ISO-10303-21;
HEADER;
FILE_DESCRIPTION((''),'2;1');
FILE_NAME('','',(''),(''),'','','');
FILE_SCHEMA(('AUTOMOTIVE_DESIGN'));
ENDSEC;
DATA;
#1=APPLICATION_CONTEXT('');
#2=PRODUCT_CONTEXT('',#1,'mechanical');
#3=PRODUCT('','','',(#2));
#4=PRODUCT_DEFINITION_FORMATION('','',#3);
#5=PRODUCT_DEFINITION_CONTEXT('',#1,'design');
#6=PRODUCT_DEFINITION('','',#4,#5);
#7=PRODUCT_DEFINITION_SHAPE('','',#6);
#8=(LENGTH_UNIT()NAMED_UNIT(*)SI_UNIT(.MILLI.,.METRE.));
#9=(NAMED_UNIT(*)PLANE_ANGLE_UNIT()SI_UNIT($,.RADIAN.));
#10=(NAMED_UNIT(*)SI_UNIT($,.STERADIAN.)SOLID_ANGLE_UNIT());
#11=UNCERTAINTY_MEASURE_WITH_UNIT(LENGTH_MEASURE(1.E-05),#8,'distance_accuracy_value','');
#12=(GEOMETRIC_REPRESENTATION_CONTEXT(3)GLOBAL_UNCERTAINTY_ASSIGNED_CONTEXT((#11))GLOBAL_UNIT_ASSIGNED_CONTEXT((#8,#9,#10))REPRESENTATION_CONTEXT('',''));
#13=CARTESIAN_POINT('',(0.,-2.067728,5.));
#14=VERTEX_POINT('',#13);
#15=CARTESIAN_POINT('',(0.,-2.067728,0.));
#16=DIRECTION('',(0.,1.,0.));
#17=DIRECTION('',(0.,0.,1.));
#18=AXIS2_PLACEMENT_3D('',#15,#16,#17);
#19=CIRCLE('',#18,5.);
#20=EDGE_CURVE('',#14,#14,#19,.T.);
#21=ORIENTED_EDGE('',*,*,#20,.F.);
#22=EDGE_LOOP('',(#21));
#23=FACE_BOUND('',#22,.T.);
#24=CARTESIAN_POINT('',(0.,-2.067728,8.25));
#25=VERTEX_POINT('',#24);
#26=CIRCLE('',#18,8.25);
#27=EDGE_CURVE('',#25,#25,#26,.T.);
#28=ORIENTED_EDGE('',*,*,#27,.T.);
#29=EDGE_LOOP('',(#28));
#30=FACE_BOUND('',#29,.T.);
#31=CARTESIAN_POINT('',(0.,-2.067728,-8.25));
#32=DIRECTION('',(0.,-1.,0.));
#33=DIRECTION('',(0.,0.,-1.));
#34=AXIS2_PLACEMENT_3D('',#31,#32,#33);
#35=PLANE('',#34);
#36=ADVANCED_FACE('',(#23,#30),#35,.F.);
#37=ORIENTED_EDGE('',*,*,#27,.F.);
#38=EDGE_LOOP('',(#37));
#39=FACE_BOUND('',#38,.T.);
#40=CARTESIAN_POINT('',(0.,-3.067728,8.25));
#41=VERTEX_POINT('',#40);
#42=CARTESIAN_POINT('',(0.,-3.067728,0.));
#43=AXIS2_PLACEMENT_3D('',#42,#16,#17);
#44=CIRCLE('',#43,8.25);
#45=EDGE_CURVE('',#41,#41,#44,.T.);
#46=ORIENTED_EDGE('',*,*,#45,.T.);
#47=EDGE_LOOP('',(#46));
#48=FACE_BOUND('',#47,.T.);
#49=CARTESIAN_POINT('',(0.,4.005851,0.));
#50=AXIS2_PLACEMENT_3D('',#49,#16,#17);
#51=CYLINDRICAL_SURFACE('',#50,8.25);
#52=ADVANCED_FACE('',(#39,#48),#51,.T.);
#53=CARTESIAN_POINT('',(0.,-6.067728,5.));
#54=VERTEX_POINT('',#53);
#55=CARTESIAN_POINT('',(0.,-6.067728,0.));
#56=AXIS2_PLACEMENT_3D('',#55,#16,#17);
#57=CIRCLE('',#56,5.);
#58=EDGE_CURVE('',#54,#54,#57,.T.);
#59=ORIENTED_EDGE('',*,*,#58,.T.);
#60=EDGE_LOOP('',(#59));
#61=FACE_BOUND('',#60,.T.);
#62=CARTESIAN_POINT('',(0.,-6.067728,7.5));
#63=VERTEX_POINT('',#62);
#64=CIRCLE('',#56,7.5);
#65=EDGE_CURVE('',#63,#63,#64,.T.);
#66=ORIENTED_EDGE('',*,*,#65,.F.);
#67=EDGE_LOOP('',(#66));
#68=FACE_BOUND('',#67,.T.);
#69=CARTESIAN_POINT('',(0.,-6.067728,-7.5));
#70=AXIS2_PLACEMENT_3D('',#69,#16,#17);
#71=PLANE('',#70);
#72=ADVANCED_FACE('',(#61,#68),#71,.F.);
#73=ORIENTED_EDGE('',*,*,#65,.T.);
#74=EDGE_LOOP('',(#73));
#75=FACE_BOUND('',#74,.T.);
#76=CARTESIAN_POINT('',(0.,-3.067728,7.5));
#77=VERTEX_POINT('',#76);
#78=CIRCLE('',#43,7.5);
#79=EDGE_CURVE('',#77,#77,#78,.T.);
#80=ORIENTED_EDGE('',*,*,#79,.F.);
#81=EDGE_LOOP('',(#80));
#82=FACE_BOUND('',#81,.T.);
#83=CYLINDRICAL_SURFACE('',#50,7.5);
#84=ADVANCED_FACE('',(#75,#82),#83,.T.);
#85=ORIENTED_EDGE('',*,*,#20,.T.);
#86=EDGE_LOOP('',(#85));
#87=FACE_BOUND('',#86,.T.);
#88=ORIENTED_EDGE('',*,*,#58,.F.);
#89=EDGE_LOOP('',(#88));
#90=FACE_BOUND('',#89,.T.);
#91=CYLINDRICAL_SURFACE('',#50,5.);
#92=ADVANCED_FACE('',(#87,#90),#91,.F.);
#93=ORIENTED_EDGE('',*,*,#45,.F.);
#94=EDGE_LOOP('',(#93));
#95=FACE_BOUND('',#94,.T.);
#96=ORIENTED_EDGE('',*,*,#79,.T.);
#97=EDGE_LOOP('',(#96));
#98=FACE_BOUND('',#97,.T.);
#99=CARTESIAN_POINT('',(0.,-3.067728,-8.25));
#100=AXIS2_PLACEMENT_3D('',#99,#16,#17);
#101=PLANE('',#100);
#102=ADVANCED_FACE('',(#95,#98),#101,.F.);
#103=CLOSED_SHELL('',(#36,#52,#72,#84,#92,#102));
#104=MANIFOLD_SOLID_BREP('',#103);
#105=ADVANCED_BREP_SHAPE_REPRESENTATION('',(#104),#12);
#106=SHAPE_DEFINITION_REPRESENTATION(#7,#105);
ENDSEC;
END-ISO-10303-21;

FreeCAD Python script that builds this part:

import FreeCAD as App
import Part
import Sketcher

V = App.Vector
Q = App.Units.Quantity

doc = App.newDocument("Part")
body = doc.addObject("PartDesign::Body", "Body")

# Sketch on YZ plane
sketch1 = doc.addObject("Sketcher::SketchObject", "Sketch")
body.addObject(sketch1)
sketch1.AttachmentSupport = (doc.YZ_Plane, [""])
sketch1.MapMode = "FlatFace"
sketch1.addGeometry(Part.LineSegment(V(-3.067728, -8.25, 0), V(-2.067728, -8.25, 0)), False)
sketch1.addGeometry(Part.LineSegment(V(-2.067728, -8.25, 0), V(-2.067728, -5, 0)), False)
sketch1.addGeometry(Part.LineSegment(V(-2.067728, -5, 0), V(-6.067728, -5, 0)), False)
sketch1.addGeometry(Part.LineSegment(V(-6.067728, -5, 0), V(-6.067728, -7.5, 0)), False)
sketch1.addGeometry(Part.LineSegment(V(-6.067728, -7.5, 0), V(-3.067728, -7.5, 0)), False)
sketch1.addGeometry(Part.LineSegment(V(-3.067728, -7.5, 0), V(-3.067728, -8.25, 0)), False)
sketch1.addConstraint(Sketcher.Constraint("Coincident", 0, 2, 1, 1))
sketch1.addConstraint(Sketcher.Constraint("Coincident", 1, 2, 2, 1))
sketch1.addConstraint(Sketcher.Constraint("Coincident", 2, 2, 3, 1))
sketch1.addConstraint(Sketcher.Constraint("Coincident", 3, 2, 4, 1))
sketch1.addConstraint(Sketcher.Constraint("Coincident", 4, 2, 5, 1))
sketch1.addConstraint(Sketcher.Constraint("Coincident", 5, 2, 0, 1))
sketch1.addConstraint(Sketcher.Constraint("Horizontal", 0))
sketch1.addConstraint(Sketcher.Constraint("Vertical", 1))
sketch1.addConstraint(Sketcher.Constraint("Horizontal", 2))
sketch1.addConstraint(Sketcher.Constraint("Vertical", 3))
sketch1.addConstraint(Sketcher.Constraint("Horizontal", 4))
sketch1.addConstraint(Sketcher.Constraint("Vertical", 5))
sketch1.addConstraint(Sketcher.Constraint("DistanceX", 0, 1, 0, 2, Q("1 mm")))
sketch1.addConstraint(Sketcher.Constraint("DistanceX", 2, 2, 2, 1, Q("4 mm")))
sketch1.addConstraint(Sketcher.Constraint("DistanceY", 3, 2, 3, 1, Q("2.5 mm")))
sketch1.addConstraint(Sketcher.Constraint("DistanceY", 1, 2, -1, 1, Q("5 mm")))
sketch1.addConstraint(Sketcher.Constraint("DistanceY", 1, 1, 1, 2, Q("3.25 mm")))
sketch1.addConstraint(Sketcher.Constraint("DistanceX", 0, 2, -1, 1, Q("2.067728 mm")))
revolution = doc.addObject("PartDesign::Revolution", "Revolution")
body.addObject(revolution)
revolution.Profile = sketch1
revolution.ReferenceAxis = (sketch1, ["H_Axis"])
revolution.Angle = 360

doc.recompute()
